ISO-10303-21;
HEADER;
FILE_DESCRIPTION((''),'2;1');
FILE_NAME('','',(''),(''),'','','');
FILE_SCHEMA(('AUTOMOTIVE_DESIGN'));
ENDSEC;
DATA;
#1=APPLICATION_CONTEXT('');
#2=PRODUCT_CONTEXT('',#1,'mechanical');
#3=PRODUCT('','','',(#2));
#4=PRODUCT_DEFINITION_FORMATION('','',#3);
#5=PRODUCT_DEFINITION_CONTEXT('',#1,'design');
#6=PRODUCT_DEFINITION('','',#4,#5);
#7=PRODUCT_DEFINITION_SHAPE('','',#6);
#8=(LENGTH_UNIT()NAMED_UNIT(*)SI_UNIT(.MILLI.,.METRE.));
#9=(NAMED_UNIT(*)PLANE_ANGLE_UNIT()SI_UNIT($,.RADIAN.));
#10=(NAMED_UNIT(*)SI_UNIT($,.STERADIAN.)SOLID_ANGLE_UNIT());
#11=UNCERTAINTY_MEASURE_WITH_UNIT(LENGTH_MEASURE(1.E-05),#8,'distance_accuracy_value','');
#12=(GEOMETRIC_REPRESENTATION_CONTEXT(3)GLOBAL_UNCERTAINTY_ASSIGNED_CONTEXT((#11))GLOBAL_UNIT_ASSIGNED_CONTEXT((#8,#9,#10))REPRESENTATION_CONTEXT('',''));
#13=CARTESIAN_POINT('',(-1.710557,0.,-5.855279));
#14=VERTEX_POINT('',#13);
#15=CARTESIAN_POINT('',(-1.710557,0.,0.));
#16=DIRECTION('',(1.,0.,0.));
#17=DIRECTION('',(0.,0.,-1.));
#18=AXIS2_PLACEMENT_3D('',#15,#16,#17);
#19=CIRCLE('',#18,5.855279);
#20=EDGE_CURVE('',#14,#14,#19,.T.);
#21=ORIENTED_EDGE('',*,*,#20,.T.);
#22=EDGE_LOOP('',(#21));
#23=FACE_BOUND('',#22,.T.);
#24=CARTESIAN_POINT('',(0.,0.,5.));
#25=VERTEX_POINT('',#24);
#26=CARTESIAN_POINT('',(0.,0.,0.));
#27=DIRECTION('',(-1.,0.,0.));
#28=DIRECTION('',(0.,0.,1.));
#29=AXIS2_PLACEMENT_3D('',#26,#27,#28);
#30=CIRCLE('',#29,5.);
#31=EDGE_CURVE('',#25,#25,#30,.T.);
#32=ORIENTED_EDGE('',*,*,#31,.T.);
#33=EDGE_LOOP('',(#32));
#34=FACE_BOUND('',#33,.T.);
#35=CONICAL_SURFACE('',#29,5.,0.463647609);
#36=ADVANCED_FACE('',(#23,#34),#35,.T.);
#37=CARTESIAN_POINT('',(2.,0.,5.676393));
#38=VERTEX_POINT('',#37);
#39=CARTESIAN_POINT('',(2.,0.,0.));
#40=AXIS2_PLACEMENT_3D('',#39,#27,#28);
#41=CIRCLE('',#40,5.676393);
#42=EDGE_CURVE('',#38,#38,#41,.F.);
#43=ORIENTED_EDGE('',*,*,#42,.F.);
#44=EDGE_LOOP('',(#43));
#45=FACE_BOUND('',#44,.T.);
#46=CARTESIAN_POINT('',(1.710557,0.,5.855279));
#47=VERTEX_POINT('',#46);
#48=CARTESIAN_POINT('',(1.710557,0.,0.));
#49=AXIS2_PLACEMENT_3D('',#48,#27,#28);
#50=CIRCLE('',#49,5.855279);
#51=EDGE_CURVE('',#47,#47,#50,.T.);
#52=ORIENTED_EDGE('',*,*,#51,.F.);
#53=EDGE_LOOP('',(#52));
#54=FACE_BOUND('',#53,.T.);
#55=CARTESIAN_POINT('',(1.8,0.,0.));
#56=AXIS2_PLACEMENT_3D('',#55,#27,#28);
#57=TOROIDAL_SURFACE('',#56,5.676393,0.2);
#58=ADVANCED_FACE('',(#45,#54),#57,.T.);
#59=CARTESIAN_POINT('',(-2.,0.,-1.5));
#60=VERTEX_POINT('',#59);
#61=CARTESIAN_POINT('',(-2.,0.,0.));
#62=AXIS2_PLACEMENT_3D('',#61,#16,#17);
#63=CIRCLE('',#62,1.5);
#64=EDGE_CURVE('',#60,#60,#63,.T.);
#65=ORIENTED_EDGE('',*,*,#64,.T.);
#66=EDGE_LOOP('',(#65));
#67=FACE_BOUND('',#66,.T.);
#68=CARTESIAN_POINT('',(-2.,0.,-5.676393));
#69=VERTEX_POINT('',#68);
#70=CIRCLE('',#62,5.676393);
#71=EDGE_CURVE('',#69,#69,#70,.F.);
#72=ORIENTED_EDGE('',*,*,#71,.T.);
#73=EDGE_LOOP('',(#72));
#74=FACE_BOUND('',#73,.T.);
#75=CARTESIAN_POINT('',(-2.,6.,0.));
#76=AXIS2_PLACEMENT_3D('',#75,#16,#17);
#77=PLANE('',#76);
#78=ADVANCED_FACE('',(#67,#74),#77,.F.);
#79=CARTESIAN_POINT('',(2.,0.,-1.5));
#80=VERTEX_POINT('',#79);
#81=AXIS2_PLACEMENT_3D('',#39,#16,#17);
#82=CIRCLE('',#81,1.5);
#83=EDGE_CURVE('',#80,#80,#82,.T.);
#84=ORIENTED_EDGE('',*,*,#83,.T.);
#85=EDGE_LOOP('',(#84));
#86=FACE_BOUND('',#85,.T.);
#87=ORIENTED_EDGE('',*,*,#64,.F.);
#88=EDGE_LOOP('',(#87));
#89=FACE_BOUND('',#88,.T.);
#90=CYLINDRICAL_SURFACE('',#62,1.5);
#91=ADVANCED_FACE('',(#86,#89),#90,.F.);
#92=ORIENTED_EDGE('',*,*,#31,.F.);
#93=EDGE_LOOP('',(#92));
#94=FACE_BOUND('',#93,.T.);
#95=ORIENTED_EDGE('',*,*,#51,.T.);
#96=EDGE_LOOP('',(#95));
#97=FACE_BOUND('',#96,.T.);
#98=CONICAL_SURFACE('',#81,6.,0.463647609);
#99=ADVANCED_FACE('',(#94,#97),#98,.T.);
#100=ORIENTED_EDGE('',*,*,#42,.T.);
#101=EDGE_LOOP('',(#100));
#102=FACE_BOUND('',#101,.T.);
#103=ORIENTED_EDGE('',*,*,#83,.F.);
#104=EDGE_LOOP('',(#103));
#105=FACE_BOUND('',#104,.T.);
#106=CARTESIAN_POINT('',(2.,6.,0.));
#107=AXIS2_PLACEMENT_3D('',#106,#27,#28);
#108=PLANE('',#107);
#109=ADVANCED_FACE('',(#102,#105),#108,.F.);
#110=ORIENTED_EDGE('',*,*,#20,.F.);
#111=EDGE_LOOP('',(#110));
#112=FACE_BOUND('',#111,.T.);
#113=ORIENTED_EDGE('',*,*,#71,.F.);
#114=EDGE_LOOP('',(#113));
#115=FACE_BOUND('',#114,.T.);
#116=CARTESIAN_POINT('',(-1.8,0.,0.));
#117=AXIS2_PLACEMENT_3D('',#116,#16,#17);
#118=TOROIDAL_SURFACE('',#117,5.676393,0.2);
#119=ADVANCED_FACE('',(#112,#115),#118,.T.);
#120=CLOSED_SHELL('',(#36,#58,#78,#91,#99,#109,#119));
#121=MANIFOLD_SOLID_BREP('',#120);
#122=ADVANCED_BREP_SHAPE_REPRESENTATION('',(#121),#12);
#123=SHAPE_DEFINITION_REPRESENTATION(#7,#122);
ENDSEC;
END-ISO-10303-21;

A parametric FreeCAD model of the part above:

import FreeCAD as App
import Part
import Sketcher


def edges_at(feature, points):
    """Names of the edges that pass closest to the given points."""
    edges = feature.Shape.Edges
    near = lambda p: min(range(len(edges)), key=lambda i: edges[i].distToShape(Part.Vertex(*p))[0])
    return sorted({f"Edge{near(p) + 1}" for p in points})

doc = App.newDocument("Part")
params = doc.addObject("Spreadsheet::Sheet", "Params")
for row, (alias, value) in enumerate([
    ("sketch1_width", "4 mm"),
    ("sketch1_height", "6 mm"),
    ("revolution_angle", "360 deg"),
    ("sketch2_diameter", "3 mm"),
    ("fillet_radius", "0.2 mm"),
], start=1):
    params.set(f"A{row}", alias)
    params.set(f"B{row}", "=" + value)
    params.setAlias(f"B{row}", alias)

body = doc.addObject("PartDesign::Body", "Body")

sketch1 = doc.addObject("Sketcher::SketchObject", "Sketch")
body.addObject(sketch1)
sketch1.AttachmentSupport = (doc.XY_Plane, [""])
sketch1.MapMode = "FlatFace"
sketch1.addGeometry([
    Part.LineSegment(App.Vector(0, 5, 0), App.Vector(-2, 6, 0)),
    Part.LineSegment(App.Vector(-2, 6, 0), App.Vector(-2, 0, 0)),
    Part.LineSegment(App.Vector(-2, 0, 0), App.Vector(2, 0, 0)),
    Part.LineSegment(App.Vector(2, 0, 0), App.Vector(2, 6, 0)),
    Part.LineSegment(App.Vector(2, 6, 0), App.Vector(0, 5, 0)),
], False)
sketch1.addConstraint([
    Sketcher.Constraint("Coincident", 0, 2, 1, 1),
    Sketcher.Constraint("Coincident", 1, 2, 2, 1),
    Sketcher.Constraint("Coincident", 2, 2, 3, 1),
    Sketcher.Constraint("Coincident", 3, 2, 4, 1),
    Sketcher.Constraint("Coincident", 4, 2, 0, 1),
    Sketcher.Constraint("Vertical", 1),
    Sketcher.Constraint("Horizontal", 2),
    Sketcher.Constraint("Vertical", 3),
    Sketcher.Constraint("Symmetric", 1, 2, 2, 2, -1, 1),
    Sketcher.Constraint("PointOnObject", 4, 2, -2),
    Sketcher.Constraint("Horizontal", 0, 2, 3, 2),
    Sketcher.Constraint("DistanceX", 2, 1, 2, 2, 4.0),
    Sketcher.Constraint("DistanceY", 1, 2, 1, 1, 6.0),
    Sketcher.Constraint("DistanceY", -1, 1, 4, 2, 5.0),
])
sketch1.setExpression("Constraints[11]", "Params.sketch1_width")
sketch1.setExpression("Constraints[12]", "Params.sketch1_height")
revolution = doc.addObject("PartDesign::Revolution", "Revolution")
body.addObject(revolution)
revolution.Profile = sketch1
revolution.ReferenceAxis = (sketch1, ["H_Axis"])
revolution.setExpression("Angle", "Params.revolution_angle")

sketch2 = doc.addObject("Sketcher::SketchObject", "Sketch001")
body.addObject(sketch2)
sketch2.AttachmentSupport = (doc.YZ_Plane, [""])
sketch2.MapMode = "FlatFace"
sketch2.addGeometry(Part.Circle(App.Vector(0, 0, 0), App.Vector(0, 0, 1), 1.5), False)
sketch2.addConstraint([
    Sketcher.Constraint("Coincident", 0, 3, -1, 1),
    Sketcher.Constraint("Diameter", 0, 3.0),
])
sketch2.setExpression("Constraints[1]", "Params.sketch2_diameter")
pocket1 = doc.addObject("PartDesign::Pocket", "Pocket")
body.addObject(pocket1)
pocket1.Profile = sketch2
pocket1.Type = "ThroughAll"
pocket1.Midplane = True
doc.recompute()

fillet = doc.addObject("PartDesign::Fillet", "Fillet")
body.addObject(fillet)
fillet.Base = (pocket1, edges_at(pocket1, [(-2, 0, -6), (2, 0, -6)]))
fillet.setExpression("Radius", "Params.fillet_radius")

doc.recompute()
